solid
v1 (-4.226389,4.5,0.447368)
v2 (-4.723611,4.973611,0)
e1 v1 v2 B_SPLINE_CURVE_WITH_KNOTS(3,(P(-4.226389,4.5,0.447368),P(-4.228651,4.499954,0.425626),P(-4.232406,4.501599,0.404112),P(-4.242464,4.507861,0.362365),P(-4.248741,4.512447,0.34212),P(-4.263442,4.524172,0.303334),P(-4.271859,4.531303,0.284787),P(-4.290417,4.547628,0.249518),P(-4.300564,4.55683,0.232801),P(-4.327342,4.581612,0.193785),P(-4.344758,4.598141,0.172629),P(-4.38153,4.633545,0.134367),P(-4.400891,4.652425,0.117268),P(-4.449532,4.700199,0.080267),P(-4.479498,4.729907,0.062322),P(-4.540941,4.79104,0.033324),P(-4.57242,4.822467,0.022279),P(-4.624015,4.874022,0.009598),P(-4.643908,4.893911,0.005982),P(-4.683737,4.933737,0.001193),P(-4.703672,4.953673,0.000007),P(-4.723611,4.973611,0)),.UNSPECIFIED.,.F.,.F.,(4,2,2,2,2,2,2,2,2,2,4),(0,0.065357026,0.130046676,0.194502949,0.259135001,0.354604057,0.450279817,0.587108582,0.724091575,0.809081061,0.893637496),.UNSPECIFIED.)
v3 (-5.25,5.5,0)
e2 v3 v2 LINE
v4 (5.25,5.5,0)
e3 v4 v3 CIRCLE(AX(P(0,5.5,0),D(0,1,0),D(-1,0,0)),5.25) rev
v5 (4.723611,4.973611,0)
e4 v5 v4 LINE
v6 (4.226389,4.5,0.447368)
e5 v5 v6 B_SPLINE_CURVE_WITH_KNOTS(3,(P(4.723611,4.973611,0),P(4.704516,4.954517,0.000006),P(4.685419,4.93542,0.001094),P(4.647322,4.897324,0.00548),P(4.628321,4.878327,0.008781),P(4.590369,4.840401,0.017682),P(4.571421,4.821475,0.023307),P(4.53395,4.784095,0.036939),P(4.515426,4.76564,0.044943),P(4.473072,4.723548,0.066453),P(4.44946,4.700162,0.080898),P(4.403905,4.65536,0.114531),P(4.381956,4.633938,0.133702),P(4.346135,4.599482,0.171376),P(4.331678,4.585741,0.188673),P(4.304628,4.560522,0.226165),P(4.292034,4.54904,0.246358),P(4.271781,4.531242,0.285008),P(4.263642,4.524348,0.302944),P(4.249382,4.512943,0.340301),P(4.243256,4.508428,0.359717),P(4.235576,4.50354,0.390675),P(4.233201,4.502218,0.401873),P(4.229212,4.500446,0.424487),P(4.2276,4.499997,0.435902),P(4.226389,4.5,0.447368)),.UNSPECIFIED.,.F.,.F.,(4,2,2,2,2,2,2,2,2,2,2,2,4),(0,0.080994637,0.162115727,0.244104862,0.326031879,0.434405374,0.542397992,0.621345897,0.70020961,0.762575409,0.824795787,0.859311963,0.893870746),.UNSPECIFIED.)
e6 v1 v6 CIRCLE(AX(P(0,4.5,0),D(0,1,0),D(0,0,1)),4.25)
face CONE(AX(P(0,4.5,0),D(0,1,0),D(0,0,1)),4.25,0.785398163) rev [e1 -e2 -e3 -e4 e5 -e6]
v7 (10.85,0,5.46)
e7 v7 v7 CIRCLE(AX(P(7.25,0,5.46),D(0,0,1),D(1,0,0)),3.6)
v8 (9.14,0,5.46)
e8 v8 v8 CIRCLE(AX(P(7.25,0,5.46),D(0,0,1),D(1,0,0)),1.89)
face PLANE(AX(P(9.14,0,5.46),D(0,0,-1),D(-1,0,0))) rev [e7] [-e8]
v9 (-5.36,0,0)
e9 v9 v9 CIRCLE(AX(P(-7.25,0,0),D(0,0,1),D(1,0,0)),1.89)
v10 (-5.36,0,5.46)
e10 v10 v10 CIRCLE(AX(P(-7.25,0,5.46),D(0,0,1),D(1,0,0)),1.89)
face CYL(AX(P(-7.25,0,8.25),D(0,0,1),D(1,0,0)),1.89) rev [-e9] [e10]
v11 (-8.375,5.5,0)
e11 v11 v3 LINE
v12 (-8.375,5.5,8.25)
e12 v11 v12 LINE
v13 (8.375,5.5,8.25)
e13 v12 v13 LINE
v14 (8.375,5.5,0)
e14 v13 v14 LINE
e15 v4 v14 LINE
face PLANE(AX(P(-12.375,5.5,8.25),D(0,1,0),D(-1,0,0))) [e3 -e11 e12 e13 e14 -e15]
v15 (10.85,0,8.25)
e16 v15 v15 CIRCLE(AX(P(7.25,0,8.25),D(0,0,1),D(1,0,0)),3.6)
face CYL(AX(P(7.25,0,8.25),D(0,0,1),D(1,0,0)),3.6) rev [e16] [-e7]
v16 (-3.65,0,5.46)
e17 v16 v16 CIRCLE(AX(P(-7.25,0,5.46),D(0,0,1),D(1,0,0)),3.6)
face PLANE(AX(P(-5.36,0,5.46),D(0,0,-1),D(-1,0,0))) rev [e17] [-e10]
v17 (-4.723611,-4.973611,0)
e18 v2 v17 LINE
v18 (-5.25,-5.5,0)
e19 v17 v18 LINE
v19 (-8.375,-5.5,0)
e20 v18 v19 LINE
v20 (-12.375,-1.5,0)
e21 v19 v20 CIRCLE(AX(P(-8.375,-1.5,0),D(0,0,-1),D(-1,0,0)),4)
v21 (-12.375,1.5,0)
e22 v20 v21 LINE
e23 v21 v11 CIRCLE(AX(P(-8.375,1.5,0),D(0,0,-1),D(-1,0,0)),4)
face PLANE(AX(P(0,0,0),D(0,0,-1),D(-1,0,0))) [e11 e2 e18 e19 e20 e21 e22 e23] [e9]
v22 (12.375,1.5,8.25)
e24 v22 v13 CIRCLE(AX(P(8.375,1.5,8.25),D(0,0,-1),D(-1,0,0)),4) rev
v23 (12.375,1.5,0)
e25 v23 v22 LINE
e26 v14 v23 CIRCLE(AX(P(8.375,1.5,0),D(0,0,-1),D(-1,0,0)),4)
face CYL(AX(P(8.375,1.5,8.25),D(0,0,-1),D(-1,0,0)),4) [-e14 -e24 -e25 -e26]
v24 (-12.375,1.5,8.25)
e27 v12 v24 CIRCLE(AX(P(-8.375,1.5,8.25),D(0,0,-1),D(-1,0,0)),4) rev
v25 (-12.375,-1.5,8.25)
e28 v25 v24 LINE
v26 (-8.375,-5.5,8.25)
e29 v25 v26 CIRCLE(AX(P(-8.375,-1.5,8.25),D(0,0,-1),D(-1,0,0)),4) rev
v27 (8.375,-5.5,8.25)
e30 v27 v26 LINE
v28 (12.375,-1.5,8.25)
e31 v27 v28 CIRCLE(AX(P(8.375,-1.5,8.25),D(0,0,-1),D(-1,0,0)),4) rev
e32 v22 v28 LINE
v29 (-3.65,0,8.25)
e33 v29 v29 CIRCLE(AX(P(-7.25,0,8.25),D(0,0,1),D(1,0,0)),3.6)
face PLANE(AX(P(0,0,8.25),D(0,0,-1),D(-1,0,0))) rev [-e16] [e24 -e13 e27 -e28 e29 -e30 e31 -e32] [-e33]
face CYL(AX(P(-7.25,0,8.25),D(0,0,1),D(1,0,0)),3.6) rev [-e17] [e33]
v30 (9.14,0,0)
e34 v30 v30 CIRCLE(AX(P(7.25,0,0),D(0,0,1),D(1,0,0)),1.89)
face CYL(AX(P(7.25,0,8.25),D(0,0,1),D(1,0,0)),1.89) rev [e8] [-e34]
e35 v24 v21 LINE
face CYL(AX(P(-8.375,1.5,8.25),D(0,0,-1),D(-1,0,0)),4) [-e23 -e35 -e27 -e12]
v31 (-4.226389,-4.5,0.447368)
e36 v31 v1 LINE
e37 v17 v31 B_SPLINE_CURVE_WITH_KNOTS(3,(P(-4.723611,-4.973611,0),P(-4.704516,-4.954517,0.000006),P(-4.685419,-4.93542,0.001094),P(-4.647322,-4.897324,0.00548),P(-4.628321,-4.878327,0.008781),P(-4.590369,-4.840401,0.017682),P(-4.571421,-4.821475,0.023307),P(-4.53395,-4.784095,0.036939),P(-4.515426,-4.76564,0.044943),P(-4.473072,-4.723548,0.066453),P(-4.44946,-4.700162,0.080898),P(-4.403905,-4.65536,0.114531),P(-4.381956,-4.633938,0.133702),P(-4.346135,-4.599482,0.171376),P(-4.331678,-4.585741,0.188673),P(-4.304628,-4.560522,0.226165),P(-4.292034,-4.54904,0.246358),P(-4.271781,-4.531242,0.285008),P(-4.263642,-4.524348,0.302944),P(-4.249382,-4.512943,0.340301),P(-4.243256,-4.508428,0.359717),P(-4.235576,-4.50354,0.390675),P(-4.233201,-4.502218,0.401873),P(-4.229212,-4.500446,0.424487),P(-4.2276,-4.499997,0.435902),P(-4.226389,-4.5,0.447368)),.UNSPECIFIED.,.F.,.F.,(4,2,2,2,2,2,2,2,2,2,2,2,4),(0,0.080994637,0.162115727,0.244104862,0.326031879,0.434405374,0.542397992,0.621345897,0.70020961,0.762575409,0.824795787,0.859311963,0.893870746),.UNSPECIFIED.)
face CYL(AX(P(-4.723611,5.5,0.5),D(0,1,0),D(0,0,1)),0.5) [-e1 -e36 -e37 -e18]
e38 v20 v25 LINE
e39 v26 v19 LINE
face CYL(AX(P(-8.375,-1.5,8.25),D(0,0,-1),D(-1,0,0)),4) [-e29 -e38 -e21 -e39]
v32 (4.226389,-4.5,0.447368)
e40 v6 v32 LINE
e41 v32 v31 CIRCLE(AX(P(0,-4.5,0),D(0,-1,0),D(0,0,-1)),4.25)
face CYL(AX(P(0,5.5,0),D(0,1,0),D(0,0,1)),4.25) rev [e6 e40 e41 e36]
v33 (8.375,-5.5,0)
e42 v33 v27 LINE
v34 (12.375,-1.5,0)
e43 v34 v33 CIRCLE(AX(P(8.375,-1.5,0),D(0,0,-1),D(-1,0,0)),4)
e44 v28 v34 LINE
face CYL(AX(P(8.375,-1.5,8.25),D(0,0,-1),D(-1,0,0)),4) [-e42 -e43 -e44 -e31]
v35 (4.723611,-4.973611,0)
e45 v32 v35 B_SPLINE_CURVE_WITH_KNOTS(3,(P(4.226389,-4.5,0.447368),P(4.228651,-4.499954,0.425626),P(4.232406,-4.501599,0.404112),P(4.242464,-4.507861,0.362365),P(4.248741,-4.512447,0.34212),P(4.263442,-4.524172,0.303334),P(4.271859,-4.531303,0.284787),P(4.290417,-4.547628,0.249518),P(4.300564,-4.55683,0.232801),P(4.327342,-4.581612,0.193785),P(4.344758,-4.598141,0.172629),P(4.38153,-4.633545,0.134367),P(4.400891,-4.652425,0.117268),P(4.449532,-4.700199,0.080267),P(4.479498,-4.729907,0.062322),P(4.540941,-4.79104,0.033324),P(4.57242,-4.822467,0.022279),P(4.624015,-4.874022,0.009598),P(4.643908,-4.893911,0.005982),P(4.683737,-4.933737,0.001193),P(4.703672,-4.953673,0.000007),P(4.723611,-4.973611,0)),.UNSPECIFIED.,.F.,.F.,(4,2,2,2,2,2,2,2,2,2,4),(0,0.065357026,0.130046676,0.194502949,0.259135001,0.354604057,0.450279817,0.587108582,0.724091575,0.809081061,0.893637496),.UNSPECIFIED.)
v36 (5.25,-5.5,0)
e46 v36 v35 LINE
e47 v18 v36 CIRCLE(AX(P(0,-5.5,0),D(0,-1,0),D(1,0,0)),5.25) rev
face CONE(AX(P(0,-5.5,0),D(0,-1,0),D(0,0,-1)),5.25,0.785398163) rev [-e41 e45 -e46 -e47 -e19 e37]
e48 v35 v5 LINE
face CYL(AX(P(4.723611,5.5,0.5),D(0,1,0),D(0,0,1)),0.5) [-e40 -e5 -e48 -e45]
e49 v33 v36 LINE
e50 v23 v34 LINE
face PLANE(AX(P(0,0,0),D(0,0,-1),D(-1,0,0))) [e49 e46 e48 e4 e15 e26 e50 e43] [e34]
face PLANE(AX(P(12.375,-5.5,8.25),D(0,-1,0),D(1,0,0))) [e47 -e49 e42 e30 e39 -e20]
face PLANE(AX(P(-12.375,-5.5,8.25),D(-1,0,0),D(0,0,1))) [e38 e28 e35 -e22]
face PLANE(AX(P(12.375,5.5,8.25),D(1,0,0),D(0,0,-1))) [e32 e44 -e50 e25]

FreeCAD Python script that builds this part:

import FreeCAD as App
import Part
import Sketcher
from FreeCAD import Vector
Q = App.Units.Quantity


def edges_at(feature, points):
    """Names of the edges that pass closest to the given points."""
    edges = feature.Shape.Edges
    near = lambda p: min(range(len(edges)), key=lambda i: edges[i].distToShape(Part.Vertex(*p))[0])
    return sorted({f"Edge{near(p) + 1}" for p in points})


def add_polygon(sketch, points):
    """Adds a closed chain of lines whose ends are joined by coincident constraints."""
    first, n = sketch.GeometryCount, len(points)
    for a, b in zip(points, points[1:] + points[:1]):
        sketch.addGeometry(Part.LineSegment(App.Vector(*a, 0), App.Vector(*b, 0)), False)
    for i in range(n):
        sketch.addConstraint(Sketcher.Constraint("Coincident", first + i, 2, first + (i + 1) % n, 1))

doc = App.newDocument("Part")
body = doc.addObject("PartDesign::Body", "Body")

sketch1 = body.newObject("Sketcher::SketchObject", "Sketch")
sketch1.AttachmentSupport = (doc.getObject("XY_Plane"), [""])
sketch1.MapMode = "FlatFace"
add_polygon(sketch1, [(12, 6), (12, -6), (-12, -6), (-12, 6)])
sketch1.addConstraint([
    Sketcher.Constraint("Vertical", 0),
    Sketcher.Constraint("Horizontal", 1),
    Sketcher.Constraint("Vertical", 2),
    Sketcher.Constraint("Horizontal", 3),
    Sketcher.Constraint("Symmetric", 0, 2, 2, 2, -1, 1),
    Sketcher.Constraint("DistanceY", 0, 2, 0, 1, Q("11 mm")),
    Sketcher.Constraint("DistanceX", 1, 2, 1, 1, Q("24.75 mm")),
])
pad1 = body.newObject("PartDesign::Pad", "Pad")
pad1.Profile = sketch1
pad1.Length = 8.25

sketch2 = body.newObject("Sketcher::SketchObject", "Sketch001")
sketch2.AttachmentSupport = (doc.getObject("XY_Plane"), [""])
sketch2.MapMode = "FlatFace"
sketch2.AttachmentOffset = App.Placement(Vector(0, 0, 8.25), App.Rotation())
sketch2.addGeometry([
    Part.Circle(Vector(-7.2, 0, 0), Vector(0, 0, 1), 1.9),
    Part.Circle(Vector(7.2, 0, 0), Vector(0, 0, 1), 1.9),
], False)
sketch2.addConstraint([
    Sketcher.Constraint("Equal", 0, 1),
    Sketcher.Constraint("Symmetric", 0, 3, 1, 3, -1, 1),
    Sketcher.Constraint("PointOnObject", 0, 3, -1),
    Sketcher.Constraint("Diameter", 0, Q("3.78 mm")),
    Sketcher.Constraint("DistanceX", 0, 3, 1, 3, Q("14.5 mm")),
])
doc.recompute()
hole = body.newObject("PartDesign::Hole", "Hole")
hole.Profile = sketch2
hole.ThreadType = "None"
hole.Diameter = 3.78
hole.DepthType = "Dimension"
hole.Depth = 8.25
hole.DrillPoint = "Flat"
hole.HoleCutType = "Counterbore"
hole.HoleCutDiameter = 7.2
hole.HoleCutDepth = 2.79

sketch3 = body.newObject("Sketcher::SketchObject", "Sketch002")
sketch3.AttachmentSupport = (doc.getObject("XZ_Plane"), [""])
sketch3.MapMode = "FlatFace"
sketch3.AttachmentOffset = App.Placement(Vector(0, 0, -5.5), App.Rotation())
sketch3.addGeometry(Part.Circle(Vector(0, 0, 0), Vector(0, 0, 1), 4.2), False)
sketch3.addConstraint([
    Sketcher.Constraint("Coincident", 0, 3, -1, 1),
    Sketcher.Constraint("Diameter", 0, Q("8.5 mm")),
])
doc.recompute()
hole2 = body.newObject("PartDesign::Hole", "Hole001")
hole2.Profile = sketch3
hole2.ThreadType = "None"
hole2.Diameter = 8.5
hole2.DepthType = "Dimension"
hole2.Depth = 11
hole2.DrillPoint = "Flat"
hole2.Reversed = True
doc.recompute()

chamfer = body.newObject("PartDesign::Chamfer", "Chamfer")
chamfer.Base = (hole2, edges_at(hole2, [(0, 5.5, 4.25), (0, -5.5, 4.25)]))
chamfer.Size = 1
doc.recompute()

fillet = body.newObject("PartDesign::Fillet", "Fillet")
fillet.Base = (chamfer, edges_at(chamfer, [(4.25, 0, 0), (-4.25, 0, 0)]))
fillet.Radius = 0.5
doc.recompute()

fillet2 = body.newObject("PartDesign::Fillet", "Fillet001")
fillet2.Base = (fillet, edges_at(fillet, [
    (-12.375, 5.5, 4.125),
    (-12.375, -5.5, 4.125),
    (12.375, -5.5, 4.125),
    (12.375, 5.5, 4.125),
]))
fillet2.Radius = 4

doc.recompute()
